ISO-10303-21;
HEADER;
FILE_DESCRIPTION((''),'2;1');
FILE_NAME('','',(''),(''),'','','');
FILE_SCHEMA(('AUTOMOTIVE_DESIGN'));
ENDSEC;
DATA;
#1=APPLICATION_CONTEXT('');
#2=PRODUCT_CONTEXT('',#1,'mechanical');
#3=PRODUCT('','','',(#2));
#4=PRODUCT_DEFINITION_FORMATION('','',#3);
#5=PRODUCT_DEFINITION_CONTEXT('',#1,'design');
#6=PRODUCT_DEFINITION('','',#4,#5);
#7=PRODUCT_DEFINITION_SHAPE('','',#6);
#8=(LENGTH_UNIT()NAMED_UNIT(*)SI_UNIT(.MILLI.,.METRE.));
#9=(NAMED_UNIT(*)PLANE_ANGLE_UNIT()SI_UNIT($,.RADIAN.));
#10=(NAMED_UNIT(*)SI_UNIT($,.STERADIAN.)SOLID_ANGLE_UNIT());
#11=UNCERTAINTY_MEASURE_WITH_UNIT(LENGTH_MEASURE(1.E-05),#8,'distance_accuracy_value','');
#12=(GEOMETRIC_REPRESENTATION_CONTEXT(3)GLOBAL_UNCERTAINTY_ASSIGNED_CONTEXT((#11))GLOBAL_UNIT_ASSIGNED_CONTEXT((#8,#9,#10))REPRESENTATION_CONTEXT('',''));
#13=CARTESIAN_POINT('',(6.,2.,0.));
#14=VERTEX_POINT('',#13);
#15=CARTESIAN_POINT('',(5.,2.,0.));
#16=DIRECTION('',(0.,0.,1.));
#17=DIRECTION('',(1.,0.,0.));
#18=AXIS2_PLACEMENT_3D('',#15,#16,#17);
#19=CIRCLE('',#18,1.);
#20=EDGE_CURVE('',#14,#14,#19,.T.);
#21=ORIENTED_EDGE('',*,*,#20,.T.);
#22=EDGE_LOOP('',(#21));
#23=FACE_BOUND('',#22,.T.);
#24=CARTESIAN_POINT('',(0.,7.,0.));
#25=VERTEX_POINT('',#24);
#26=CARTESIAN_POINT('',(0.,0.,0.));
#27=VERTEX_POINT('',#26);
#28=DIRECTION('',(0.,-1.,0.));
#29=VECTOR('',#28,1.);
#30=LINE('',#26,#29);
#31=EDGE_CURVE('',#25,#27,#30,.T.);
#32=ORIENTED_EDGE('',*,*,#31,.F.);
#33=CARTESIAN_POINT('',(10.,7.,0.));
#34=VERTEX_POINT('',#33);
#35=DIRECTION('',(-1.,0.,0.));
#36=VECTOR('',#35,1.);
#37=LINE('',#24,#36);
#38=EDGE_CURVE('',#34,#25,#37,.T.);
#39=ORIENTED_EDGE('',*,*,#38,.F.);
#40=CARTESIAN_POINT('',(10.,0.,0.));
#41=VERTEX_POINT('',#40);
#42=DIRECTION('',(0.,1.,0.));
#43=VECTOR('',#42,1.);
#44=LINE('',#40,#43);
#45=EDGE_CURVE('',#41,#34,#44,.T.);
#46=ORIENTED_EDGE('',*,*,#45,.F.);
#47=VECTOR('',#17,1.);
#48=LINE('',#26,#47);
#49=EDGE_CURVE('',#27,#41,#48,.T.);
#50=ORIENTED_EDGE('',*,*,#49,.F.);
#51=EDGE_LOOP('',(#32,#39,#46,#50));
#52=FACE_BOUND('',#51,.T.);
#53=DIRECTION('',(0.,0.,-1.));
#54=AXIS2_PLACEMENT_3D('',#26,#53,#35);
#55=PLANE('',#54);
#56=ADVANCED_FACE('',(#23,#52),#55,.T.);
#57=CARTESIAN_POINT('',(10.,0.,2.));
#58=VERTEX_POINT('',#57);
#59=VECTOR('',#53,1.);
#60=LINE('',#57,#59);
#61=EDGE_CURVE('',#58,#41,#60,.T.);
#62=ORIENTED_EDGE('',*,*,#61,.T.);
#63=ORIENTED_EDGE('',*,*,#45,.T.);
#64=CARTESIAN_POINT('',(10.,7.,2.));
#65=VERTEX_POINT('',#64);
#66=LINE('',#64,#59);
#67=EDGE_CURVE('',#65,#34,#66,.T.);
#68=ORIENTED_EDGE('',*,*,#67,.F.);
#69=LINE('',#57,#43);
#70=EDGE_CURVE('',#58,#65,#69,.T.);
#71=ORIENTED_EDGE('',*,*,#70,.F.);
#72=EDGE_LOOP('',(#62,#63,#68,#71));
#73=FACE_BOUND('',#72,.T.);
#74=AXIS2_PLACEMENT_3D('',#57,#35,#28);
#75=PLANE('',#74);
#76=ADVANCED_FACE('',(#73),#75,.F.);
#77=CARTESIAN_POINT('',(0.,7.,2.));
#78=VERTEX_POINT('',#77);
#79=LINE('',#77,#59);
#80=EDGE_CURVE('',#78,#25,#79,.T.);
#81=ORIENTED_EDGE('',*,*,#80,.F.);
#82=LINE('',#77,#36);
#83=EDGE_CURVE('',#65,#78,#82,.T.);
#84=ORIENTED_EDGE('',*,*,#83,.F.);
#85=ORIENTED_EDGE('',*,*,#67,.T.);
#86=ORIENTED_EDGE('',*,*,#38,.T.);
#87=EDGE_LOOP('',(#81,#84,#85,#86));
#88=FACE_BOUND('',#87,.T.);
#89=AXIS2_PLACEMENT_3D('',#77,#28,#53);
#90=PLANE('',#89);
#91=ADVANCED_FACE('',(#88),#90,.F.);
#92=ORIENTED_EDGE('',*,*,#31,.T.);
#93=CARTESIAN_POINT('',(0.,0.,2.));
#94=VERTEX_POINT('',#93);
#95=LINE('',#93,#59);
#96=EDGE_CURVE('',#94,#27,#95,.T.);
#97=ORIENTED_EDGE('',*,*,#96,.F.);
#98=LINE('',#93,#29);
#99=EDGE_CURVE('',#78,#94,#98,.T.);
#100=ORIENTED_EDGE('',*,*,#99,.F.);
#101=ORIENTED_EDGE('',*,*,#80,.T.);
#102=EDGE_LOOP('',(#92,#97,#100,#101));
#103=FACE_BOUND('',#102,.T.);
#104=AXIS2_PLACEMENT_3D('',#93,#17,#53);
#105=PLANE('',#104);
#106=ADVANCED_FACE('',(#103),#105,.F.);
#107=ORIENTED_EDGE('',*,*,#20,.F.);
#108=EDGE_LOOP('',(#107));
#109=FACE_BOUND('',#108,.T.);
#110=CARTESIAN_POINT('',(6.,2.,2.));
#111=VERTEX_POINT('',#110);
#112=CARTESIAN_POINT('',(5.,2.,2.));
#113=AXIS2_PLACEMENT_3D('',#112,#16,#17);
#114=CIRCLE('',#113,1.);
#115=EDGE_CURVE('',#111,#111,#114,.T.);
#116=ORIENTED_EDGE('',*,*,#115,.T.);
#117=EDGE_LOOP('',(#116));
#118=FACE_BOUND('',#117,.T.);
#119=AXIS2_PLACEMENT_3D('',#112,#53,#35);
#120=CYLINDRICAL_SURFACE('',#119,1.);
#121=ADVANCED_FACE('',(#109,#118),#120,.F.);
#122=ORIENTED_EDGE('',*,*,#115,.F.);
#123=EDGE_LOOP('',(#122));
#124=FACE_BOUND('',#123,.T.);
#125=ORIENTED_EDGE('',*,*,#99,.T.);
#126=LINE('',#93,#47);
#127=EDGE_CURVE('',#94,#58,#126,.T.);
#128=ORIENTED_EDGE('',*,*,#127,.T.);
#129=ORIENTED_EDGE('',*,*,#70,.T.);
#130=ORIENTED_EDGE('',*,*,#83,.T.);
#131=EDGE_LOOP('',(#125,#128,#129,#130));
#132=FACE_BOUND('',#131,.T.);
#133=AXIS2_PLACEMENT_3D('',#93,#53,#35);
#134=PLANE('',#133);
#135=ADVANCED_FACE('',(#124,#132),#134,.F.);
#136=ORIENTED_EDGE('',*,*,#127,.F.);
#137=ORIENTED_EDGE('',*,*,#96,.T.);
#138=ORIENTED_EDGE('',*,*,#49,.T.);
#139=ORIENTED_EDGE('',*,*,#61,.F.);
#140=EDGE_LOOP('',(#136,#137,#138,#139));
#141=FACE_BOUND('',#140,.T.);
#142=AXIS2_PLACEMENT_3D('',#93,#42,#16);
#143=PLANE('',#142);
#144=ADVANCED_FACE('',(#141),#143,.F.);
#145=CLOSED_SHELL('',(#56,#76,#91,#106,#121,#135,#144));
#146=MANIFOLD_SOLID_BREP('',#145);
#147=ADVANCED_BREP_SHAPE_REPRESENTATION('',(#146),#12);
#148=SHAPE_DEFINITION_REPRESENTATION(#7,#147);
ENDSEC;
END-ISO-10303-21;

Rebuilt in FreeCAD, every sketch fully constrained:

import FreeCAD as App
import Part
import Sketcher
from FreeCAD import Vector

doc = App.newDocument("Part")
body = doc.addObject("PartDesign::Body", "Body")

sketch1 = doc.addObject("Sketcher::SketchObject", "Sketch")
body.addObject(sketch1)
sketch1.AttachmentSupport = (doc.XY_Plane, [""])
sketch1.MapMode = "FlatFace"
sketch1.addGeometry(Part.LineSegment(Vector(0, 7, 0), Vector(0, 0, 0)), False)
sketch1.addGeometry(Part.LineSegment(Vector(0, 0, 0), Vector(10, 0, 0)), False)
sketch1.addGeometry(Part.LineSegment(Vector(10, 0, 0), Vector(10, 7, 0)), False)
sketch1.addGeometry(Part.LineSegment(Vector(10, 7, 0), Vector(0, 7, 0)), False)
sketch1.addGeometry(Part.Circle(Vector(5, 2, 0), Vector(0, 0, 1), 1), False)
sketch1.addConstraint(Sketcher.Constraint("Coincident", 0, 2, 1, 1))
sketch1.addConstraint(Sketcher.Constraint("Coincident", 1, 2, 2, 1))
sketch1.addConstraint(Sketcher.Constraint("Coincident", 2, 2, 3, 1))
sketch1.addConstraint(Sketcher.Constraint("Coincident", 3, 2, 0, 1))
sketch1.addConstraint(Sketcher.Constraint("Vertical", 0))
sketch1.addConstraint(Sketcher.Constraint("Horizontal", 1))
sketch1.addConstraint(Sketcher.Constraint("Vertical", 2))
sketch1.addConstraint(Sketcher.Constraint("Horizontal", 3))
sketch1.addConstraint(Sketcher.Constraint("Coincident", 0, 2, -1, 1))
sketch1.addConstraint(Sketcher.Constraint("Diameter", 4, 2.0))
sketch1.addConstraint(Sketcher.Constraint("DistanceX", 1, 1, 1, 2, 10.0))
sketch1.addConstraint(Sketcher.Constraint("DistanceY", 0, 2, 0, 1, 7.0))
sketch1.addConstraint(Sketcher.Constraint("DistanceX", -1, 1, 4, 3, 5.0))
sketch1.addConstraint(Sketcher.Constraint("DistanceY", -1, 1, 4, 3, 2.0))
pad1 = doc.addObject("PartDesign::Pad", "Pad")
body.addObject(pad1)
pad1.Profile = sketch1
pad1.Length = 2

doc.recompute()
